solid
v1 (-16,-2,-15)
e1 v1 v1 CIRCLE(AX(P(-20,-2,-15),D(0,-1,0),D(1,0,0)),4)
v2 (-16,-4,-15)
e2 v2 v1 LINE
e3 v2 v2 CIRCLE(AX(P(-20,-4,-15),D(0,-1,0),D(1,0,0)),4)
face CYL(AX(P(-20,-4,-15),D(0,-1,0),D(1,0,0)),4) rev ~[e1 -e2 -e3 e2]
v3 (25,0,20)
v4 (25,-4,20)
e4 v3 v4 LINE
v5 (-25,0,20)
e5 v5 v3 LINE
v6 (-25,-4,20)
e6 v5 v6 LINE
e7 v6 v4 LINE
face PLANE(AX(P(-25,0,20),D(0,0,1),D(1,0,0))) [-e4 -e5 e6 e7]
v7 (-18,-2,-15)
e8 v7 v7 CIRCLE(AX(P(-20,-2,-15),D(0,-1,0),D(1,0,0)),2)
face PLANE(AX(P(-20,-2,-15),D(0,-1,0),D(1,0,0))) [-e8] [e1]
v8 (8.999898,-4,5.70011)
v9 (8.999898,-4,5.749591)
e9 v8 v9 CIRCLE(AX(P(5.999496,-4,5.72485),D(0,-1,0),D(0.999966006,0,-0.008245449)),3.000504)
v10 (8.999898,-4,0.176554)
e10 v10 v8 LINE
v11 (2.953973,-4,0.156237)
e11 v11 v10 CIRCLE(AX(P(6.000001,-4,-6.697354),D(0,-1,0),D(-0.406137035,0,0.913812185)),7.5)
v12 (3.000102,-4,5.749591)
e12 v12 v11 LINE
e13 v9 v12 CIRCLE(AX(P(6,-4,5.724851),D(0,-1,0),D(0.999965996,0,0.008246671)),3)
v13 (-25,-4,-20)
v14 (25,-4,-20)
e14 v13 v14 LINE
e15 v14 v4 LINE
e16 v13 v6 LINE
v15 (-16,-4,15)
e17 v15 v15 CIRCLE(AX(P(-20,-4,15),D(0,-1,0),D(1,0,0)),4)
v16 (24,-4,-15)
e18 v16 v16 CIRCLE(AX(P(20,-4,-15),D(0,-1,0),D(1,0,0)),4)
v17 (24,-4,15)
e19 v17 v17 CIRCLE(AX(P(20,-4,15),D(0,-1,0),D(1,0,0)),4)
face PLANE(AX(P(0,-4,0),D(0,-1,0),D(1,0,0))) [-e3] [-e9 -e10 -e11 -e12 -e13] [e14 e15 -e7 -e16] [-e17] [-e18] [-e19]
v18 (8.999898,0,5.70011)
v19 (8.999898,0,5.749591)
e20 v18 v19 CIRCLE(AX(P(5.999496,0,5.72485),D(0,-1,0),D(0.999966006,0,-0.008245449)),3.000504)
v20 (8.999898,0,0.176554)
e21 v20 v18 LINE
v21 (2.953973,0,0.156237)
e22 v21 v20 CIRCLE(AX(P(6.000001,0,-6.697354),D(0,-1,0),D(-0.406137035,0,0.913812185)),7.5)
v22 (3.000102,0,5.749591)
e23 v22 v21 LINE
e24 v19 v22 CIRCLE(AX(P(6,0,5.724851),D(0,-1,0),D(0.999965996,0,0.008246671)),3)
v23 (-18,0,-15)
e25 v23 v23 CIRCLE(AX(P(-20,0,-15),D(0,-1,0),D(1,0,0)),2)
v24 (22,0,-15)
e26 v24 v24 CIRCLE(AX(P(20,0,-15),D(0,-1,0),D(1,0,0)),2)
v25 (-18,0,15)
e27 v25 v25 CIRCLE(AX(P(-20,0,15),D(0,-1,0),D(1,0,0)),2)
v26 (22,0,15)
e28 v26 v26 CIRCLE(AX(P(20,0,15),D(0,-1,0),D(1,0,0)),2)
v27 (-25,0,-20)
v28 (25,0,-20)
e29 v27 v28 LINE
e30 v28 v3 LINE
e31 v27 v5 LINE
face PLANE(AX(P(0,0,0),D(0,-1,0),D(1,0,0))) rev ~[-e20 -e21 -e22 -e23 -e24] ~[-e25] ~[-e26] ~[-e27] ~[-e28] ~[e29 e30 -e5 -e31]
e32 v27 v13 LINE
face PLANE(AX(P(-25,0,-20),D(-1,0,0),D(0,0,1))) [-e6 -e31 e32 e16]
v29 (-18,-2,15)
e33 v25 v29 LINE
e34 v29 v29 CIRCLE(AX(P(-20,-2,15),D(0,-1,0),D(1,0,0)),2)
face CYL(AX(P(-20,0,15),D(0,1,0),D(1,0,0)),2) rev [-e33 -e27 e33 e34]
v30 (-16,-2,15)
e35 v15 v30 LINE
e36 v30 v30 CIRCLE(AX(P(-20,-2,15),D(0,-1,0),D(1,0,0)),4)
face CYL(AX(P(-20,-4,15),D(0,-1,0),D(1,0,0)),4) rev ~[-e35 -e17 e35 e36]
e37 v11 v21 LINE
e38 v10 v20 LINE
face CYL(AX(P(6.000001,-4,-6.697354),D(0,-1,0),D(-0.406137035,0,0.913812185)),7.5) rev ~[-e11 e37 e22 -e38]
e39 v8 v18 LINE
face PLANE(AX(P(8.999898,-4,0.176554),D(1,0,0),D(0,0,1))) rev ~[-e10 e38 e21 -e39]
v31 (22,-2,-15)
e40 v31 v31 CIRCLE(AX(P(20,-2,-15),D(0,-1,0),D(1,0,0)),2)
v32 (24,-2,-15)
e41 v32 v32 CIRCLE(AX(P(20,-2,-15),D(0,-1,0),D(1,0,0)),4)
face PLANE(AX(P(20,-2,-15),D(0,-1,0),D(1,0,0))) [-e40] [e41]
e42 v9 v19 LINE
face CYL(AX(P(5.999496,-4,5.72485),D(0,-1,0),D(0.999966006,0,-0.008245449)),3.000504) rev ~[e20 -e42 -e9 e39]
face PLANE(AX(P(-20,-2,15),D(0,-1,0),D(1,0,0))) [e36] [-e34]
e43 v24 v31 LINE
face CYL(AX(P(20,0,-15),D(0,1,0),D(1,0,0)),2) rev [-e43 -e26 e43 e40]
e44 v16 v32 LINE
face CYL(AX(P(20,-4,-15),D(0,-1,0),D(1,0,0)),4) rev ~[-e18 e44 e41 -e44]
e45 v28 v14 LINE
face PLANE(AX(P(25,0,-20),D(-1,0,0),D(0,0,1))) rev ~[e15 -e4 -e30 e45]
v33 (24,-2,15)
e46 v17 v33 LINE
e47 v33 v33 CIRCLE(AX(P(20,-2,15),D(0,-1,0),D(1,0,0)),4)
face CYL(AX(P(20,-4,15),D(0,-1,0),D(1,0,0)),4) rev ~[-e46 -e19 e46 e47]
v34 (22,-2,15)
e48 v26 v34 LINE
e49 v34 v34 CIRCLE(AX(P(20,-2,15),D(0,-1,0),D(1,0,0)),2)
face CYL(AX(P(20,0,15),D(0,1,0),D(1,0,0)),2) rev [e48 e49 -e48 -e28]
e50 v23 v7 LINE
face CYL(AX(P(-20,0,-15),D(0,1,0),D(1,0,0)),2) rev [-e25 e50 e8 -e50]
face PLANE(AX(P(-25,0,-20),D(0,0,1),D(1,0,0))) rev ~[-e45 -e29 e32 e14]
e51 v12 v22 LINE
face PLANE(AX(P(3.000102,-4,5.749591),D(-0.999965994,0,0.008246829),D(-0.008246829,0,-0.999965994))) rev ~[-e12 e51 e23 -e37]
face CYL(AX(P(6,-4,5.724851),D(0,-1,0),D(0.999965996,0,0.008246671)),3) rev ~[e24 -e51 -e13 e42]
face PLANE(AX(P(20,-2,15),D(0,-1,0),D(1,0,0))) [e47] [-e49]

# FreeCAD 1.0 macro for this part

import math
import FreeCAD as App
import Part
import Sketcher


def add_polygon(sketch, points):
    """Adds a closed chain of lines whose ends are joined by coincident constraints."""
    first, n = sketch.GeometryCount, len(points)
    for a, b in zip(points, points[1:] + points[:1]):
        sketch.addGeometry(Part.LineSegment(App.Vector(*a, 0), App.Vector(*b, 0)), False)
    for i in range(n):
        sketch.addConstraint(Sketcher.Constraint("Coincident", first + i, 2, first + (i + 1) % n, 1))

doc = App.newDocument("Part")
params = doc.addObject("Spreadsheet::Sheet", "Params")
for row, (alias, value) in enumerate([
    ("sketch1_diameter", "4 mm"),
    ("sketch1_width", "50 mm"),
    ("sketch1_height", "40 mm"),
    ("pad1_length", "4 mm"),
    ("sketch2_diameter", "8 mm"),
    ("sketch2_diameter2", "4 mm"),
    ("pocket1_length", "2 mm"),
    ("sketch3_radius", "3 mm"),
    ("sketch3_radius2", "7.5 mm"),
    ("pocket2_length", "25 mm"),
], start=1):
    params.set(f"A{row}", alias)
    params.set(f"B{row}", "=" + value)
    params.setAlias(f"B{row}", alias)

body = doc.addObject("PartDesign::Body", "Body")

# Sketch on XZ plane
sketch1 = body.newObject("Sketcher::SketchObject", "Sketch")
sketch1.AttachmentSupport = (doc.getObject("XZ_Plane"), [""])
sketch1.MapMode = "FlatFace"
add_polygon(sketch1, [(-25, 20), (-25, -20), (25, -20), (25, 20)])  # lines 0-3
sketch1.addGeometry(Part.Circle(App.Vector(-20, -15, 0), App.Vector(0, 0, 1), 2), False)  # 4
sketch1.addGeometry(Part.Circle(App.Vector(20, -15, 0), App.Vector(0, 0, 1), 2), False)  # 5
sketch1.addGeometry(Part.Circle(App.Vector(-20, 15, 0), App.Vector(0, 0, 1), 2), False)  # 6
sketch1.addGeometry(Part.Circle(App.Vector(20, 15, 0), App.Vector(0, 0, 1), 2), False)  # 7
sketch1.addConstraint([
    Sketcher.Constraint("Vertical", 0),
    Sketcher.Constraint("Horizontal", 1),
    Sketcher.Constraint("Vertical", 2),
    Sketcher.Constraint("Horizontal", 3),
    Sketcher.Constraint("Equal", 4, 5),
    Sketcher.Constraint("Equal", 5, 6),
    Sketcher.Constraint("Equal", 6, 7),
    Sketcher.Constraint("Symmetric", 5, 3, 6, 3, -1, 1),
    Sketcher.Constraint("Symmetric", 4, 3, 7, 3, -1, 1),
    Sketcher.Constraint("Symmetric", 0, 2, 2, 2, -1, 1),
    Sketcher.Constraint("Symmetric", 4, 3, 5, 3, -2),
    Sketcher.Constraint("Diameter", 4, 4.0),
    Sketcher.Constraint("DistanceX", 1, 1, 1, 2, 50.0),
    Sketcher.Constraint("DistanceY", 0, 2, 0, 1, 40.0),
    Sketcher.Constraint("DistanceX", 4, 3, -1, 1, 20.0),
    Sketcher.Constraint("DistanceY", 4, 3, -1, 1, 15.0),
])
sketch1.setExpression("Constraints[15]", "Params.sketch1_diameter")
sketch1.setExpression("Constraints[16]", "Params.sketch1_width")
sketch1.setExpression("Constraints[17]", "Params.sketch1_height")
pad1 = body.newObject("PartDesign::Pad", "Pad")
pad1.Profile = sketch1
pad1.setExpression("Length", "Params.pad1_length")

# Sketch on XZ plane
sketch2 = body.newObject("Sketcher::SketchObject", "Sketch001")
sketch2.AttachmentSupport = (doc.getObject("XZ_Plane"), [""])
sketch2.MapMode = "FlatFace"
sketch2.AttachmentOffset = App.Placement(App.Vector(0, 0, 4), App.Rotation())
sketch2.addGeometry([
    Part.Circle(App.Vector(-20, 15, 0), App.Vector(0, 0, 1), 4),  # 0
    Part.Circle(App.Vector(-20, 15, 0), App.Vector(0, 0, 1), 2),  # 1
    Part.Circle(App.Vector(20, 15, 0), App.Vector(0, 0, 1), 4),  # 2
    Part.Circle(App.Vector(20, 15, 0), App.Vector(0, 0, 1), 2),  # 3
    Part.Circle(App.Vector(20, -15, 0), App.Vector(0, 0, 1), 4),  # 4
    Part.Circle(App.Vector(20, -15, 0), App.Vector(0, 0, 1), 2),  # 5
    Part.Circle(App.Vector(-20, -15, 0), App.Vector(0, 0, 1), 4),  # 6
    Part.Circle(App.Vector(-20, -15, 0), App.Vector(0, 0, 1), 2),  # 7
], False)
sketch2.addConstraint([
    Sketcher.Constraint("Coincident", 1, 3, 0, 3),
    Sketcher.Constraint("Coincident", 3, 3, 2, 3),
    Sketcher.Constraint("Coincident", 5, 3, 4, 3),
    Sketcher.Constraint("Coincident", 7, 3, 6, 3),
    Sketcher.Constraint("Equal", 0, 2),
    Sketcher.Constraint("Equal", 1, 3),
    Sketcher.Constraint("Equal", 2, 4),
    Sketcher.Constraint("Equal", 3, 5),
    Sketcher.Constraint("Equal", 4, 6),
    Sketcher.Constraint("Equal", 5, 7),
    Sketcher.Constraint("Symmetric", 0, 3, 4, 3, -1, 1),
    Sketcher.Constraint("Symmetric", 2, 3, 6, 3, -1, 1),
    Sketcher.Constraint("Symmetric", 0, 3, 2, 3, -2),
    Sketcher.Constraint("Diameter", 0, 8.0),
    Sketcher.Constraint("Diameter", 1, 4.0),
    Sketcher.Constraint("DistanceX", 0, 3, -1, 1, 20.0),
    Sketcher.Constraint("DistanceY", -1, 1, 0, 3, 15.0),
])
sketch2.setExpression("Constraints[13]", "Params.sketch2_diameter")
sketch2.setExpression("Constraints[14]", "Params.sketch2_diameter2")
pocket1 = body.newObject("PartDesign::Pocket", "Pocket")
pocket1.Profile = sketch2
pocket1.setExpression("Length", "Params.pocket1_length")

# Sketch on XZ plane
sketch3 = body.newObject("Sketcher::SketchObject", "Sketch002")
sketch3.AttachmentSupport = (doc.getObject("XZ_Plane"), [""])
sketch3.MapMode = "FlatFace"
sketch3.AttachmentOffset = App.Placement(App.Vector(0, 0, 4), App.Rotation())
sketch3.addGeometry([
    Part.LineSegment(App.Vector(3.000102, 5.749591, 0), App.Vector(2.953973, 0.156237, 0)),  # 0
    Part.ArcOfCircle(Part.Circle(App.Vector(6.000001, -6.697354, 0), App.Vector(0, 0, 1), 7.5), math.radians(113.962399), math.radians(426.422678)),  # 1
    Part.LineSegment(App.Vector(8.999898, 0.176554, 0), App.Vector(8.999898, 5.70011, 0)),  # 2
    Part.ArcOfCircle(Part.Circle(App.Vector(5.999496, 5.72485, 0), App.Vector(0, 0, 1), 3.000504), math.radians(-0.472435), math.radians(0.472435)),  # 3
    Part.ArcOfCircle(Part.Circle(App.Vector(6, 5.724851, 0), App.Vector(0, 0, 1), 3), math.radians(0.472505), math.radians(179.527495)),  # 4
], False)
sketch3.addConstraint([
    Sketcher.Constraint("Coincident", 0, 2, 1, 1),
    Sketcher.Constraint("Coincident", 1, 2, 2, 1),
    Sketcher.Constraint("Coincident", 2, 2, 3, 1),
    Sketcher.Constraint("Coincident", 3, 2, 4, 1),
    Sketcher.Constraint("Coincident", 4, 2, 0, 1),
    Sketcher.Constraint("Vertical", 2),
    Sketcher.Constraint("Radius", 4, 3.0),
    Sketcher.Constraint("Radius", 1, 7.5),
    Sketcher.Constraint("DistanceX", -1, 1, 1, 3, 6.000001),
    Sketcher.Constraint("DistanceX", -1, 1, 4, 3, 6.0),
    Sketcher.Constraint("Radius", 3, 3.000504),
    Sketcher.Constraint("DistanceX", -1, 1, 1, 2, 8.999898),
    Sketcher.Constraint("DistanceX", 3, 3, 2, 2, 3.000402),
    Sketcher.Constraint("DistanceX", 3, 3, 3, 2, 3.000402),
    Sketcher.Constraint("DistanceY", 2, 1, 2, 2, 5.523556),
    Sketcher.Constraint("DistanceY", -1, 1, 3, 3, 5.72485),
    Sketcher.Constraint("DistanceY", -1, 1, 4, 2, 5.749591),
    Sketcher.Constraint("DistanceY", 1, 3, 0, 2, 6.853591),
])
sketch3.setExpression("Constraints[6]", "Params.sketch3_radius")
sketch3.setExpression("Constraints[7]", "Params.sketch3_radius2")
pocket2 = body.newObject("PartDesign::Pocket", "Pocket001")
pocket2.Profile = sketch3
pocket2.setExpression("Length", "Params.pocket2_length")

doc.recompute()
